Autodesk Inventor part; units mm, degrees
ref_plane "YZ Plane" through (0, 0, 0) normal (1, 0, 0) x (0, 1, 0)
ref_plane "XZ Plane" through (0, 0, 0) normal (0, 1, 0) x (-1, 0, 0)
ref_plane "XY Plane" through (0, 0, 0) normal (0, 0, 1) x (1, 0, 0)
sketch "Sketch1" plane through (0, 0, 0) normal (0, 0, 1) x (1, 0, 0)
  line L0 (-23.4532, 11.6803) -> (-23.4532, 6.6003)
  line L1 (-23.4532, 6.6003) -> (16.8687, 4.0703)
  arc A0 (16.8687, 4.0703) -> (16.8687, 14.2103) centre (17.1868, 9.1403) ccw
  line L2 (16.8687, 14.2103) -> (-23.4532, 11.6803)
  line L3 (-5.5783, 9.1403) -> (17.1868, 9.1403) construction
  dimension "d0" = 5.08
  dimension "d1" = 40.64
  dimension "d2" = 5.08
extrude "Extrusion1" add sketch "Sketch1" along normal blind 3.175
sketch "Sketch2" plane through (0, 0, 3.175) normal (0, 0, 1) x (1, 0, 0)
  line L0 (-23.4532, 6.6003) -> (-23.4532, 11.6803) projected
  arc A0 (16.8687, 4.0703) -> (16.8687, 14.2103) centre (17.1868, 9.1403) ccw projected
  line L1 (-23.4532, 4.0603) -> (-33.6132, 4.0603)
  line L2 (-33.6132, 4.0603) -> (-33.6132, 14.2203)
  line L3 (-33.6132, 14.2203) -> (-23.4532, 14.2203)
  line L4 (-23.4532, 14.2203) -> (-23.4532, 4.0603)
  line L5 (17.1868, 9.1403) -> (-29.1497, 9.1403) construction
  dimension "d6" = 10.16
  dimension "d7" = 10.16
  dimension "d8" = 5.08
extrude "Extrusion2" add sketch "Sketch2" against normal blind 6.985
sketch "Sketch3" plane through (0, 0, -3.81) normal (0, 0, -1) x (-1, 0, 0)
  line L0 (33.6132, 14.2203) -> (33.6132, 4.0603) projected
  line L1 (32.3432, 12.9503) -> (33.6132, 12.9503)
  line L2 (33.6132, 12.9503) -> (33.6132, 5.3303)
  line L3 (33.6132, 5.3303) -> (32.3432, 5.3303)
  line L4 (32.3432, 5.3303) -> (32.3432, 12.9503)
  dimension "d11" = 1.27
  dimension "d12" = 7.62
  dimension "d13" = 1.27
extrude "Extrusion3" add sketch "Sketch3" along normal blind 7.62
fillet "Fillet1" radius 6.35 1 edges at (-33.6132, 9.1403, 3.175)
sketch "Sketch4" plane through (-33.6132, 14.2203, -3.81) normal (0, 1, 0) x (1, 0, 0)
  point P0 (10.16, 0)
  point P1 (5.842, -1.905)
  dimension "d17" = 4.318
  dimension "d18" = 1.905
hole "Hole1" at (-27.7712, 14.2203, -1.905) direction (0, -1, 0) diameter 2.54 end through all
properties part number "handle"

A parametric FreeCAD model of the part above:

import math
import FreeCAD as App
import Part
import Sketcher

V = App.Vector
Q = App.Units.Quantity


def edges_at(feature, points):
    """Names of the edges that pass closest to the given points."""
    edges = feature.Shape.Edges
    near = lambda p: min(range(len(edges)), key=lambda i: edges[i].distToShape(Part.Vertex(*p))[0])
    return sorted({f"Edge{near(p) + 1}" for p in points})

doc = App.newDocument("Part")
body = doc.addObject("PartDesign::Body", "Body")

# Sketch on XY plane
sketch1 = body.newObject("Sketcher::SketchObject", "Sketch")
sketch1.AttachmentSupport = (doc.getObject("XY_Plane"), [""])
sketch1.MapMode = "FlatFace"
sketch1.addGeometry([
    Part.LineSegment(V(16.8687, 14.2103, 0), V(-23.4532, 11.6803, 0)),
    Part.LineSegment(V(-23.4532, 11.6803, 0), V(-23.4532, 6.6003, 0)),
    Part.LineSegment(V(-23.4532, 6.6003, 0), V(16.8687, 4.0703, 0)),
    Part.ArcOfCircle(Part.Circle(V(17.1868, 9.1403, 0), V(0, 0, 1), 5.079969), math.radians(-93.590124), math.radians(93.590124)),
], False)
sketch1.addConstraint([
    Sketcher.Constraint("Coincident", 0, 2, 1, 1),
    Sketcher.Constraint("Coincident", 1, 2, 2, 1),
    Sketcher.Constraint("Tangent", 2, 2, 3, 1),
    Sketcher.Constraint("Tangent", 3, 2, 0, 1),
    Sketcher.Constraint("Vertical", 1),
    Sketcher.Constraint("Vertical", 2, 2, 3, 2),
    Sketcher.Constraint("Radius", 3, Q("0.2 in")),
    Sketcher.Constraint("DistanceY", 1, 2, 1, 1, Q("0.2 in")),
    Sketcher.Constraint("DistanceX", 0, 2, 3, 3, Q("1.6 in")),
    Sketcher.Constraint("DistanceX", -1, 1, 3, 3, 17.1868),
    Sketcher.Constraint("DistanceY", -1, 1, 3, 3, 9.1403),
])
pad1 = body.newObject("PartDesign::Pad", "Pad")
pad1.Profile = sketch1
pad1.Length = Q("0.125 in")

# Sketch on XY plane
sketch2 = body.newObject("Sketcher::SketchObject", "Sketch001")
sketch2.AttachmentSupport = (doc.getObject("XY_Plane"), [""])
sketch2.MapMode = "FlatFace"
sketch2.AttachmentOffset = App.Placement(V(0, 0, 0.125 * 25.4), App.Rotation())
sketch2.addGeometry([
    Part.LineSegment(V(-23.4532, 4.0603, 0), V(-23.4532, 14.2203, 0)),
    Part.LineSegment(V(-23.4532, 14.2203, 0), V(-33.6132, 14.2203, 0)),
    Part.LineSegment(V(-33.6132, 14.2203, 0), V(-33.6132, 4.0603, 0)),
    Part.LineSegment(V(-33.6132, 4.0603, 0), V(-23.4532, 4.0603, 0)),
], False)
sketch2.addConstraint([
    Sketcher.Constraint("Coincident", 0, 2, 1, 1),
    Sketcher.Constraint("Coincident", 1, 2, 2, 1),
    Sketcher.Constraint("Coincident", 2, 2, 3, 1),
    Sketcher.Constraint("Coincident", 3, 2, 0, 1),
    Sketcher.Constraint("Vertical", 0),
    Sketcher.Constraint("Horizontal", 1),
    Sketcher.Constraint("Vertical", 2),
    Sketcher.Constraint("Horizontal", 3),
    Sketcher.Constraint("Equal", 3, 0),
    Sketcher.Constraint("DistanceX", 1, 2, 1, 1, Q("0.4 in")),
    Sketcher.Constraint("DistanceX", 0, 2, -1, 1, 23.4532),
    Sketcher.Constraint("DistanceY", -1, 1, 0, 2, 14.2203),
])
pad2 = body.newObject("PartDesign::Pad", "Pad001")
pad2.Profile = sketch2
pad2.Length = Q("0.275 in")
pad2.Reversed = True

# Sketch on XY plane
sketch3 = body.newObject("Sketcher::SketchObject", "Sketch002")
sketch3.AttachmentSupport = (doc.getObject("XY_Plane"), [""])
sketch3.MapMode = "FlatFace"
sketch3.AttachmentOffset = App.Placement(V(0, 0, -0.15 * 25.4), App.Rotation())
sketch3.addGeometry([
    Part.LineSegment(V(-33.6132, 5.3303, 0), V(-33.6132, 12.9503, 0)),
    Part.LineSegment(V(-33.6132, 12.9503, 0), V(-32.3432, 12.9503, 0)),
    Part.LineSegment(V(-32.3432, 12.9503, 0), V(-32.3432, 5.3303, 0)),
    Part.LineSegment(V(-32.3432, 5.3303, 0), V(-33.6132, 5.3303, 0)),
], False)
sketch3.addConstraint([
    Sketcher.Constraint("Coincident", 0, 2, 1, 1),
    Sketcher.Constraint("Coincident", 1, 2, 2, 1),
    Sketcher.Constraint("Coincident", 2, 2, 3, 1),
    Sketcher.Constraint("Coincident", 3, 2, 0, 1),
    Sketcher.Constraint("Vertical", 0),
    Sketcher.Constraint("Horizontal", 1),
    Sketcher.Constraint("Vertical", 2),
    Sketcher.Constraint("Horizontal", 3),
    Sketcher.Constraint("DistanceY", 0, 1, 0, 2, Q("0.3 in")),
    Sketcher.Constraint("DistanceX", 1, 1, 1, 2, Q("0.05 in")),
    Sketcher.Constraint("DistanceX", 0, 2, -1, 1, 33.6132),
    Sketcher.Constraint("DistanceY", -1, 1, 0, 2, 12.9503),
])
pad3 = body.newObject("PartDesign::Pad", "Pad002")
pad3.Profile = sketch3
pad3.Length = Q("0.3 in")
pad3.Reversed = True
doc.recompute()

fillet = body.newObject("PartDesign::Fillet", "Fillet")
fillet.Base = (pad3, edges_at(pad3, [(-33.613, 9.14, 3.175)]))
fillet.Radius = Q("0.25 in")

# Sketch on XZ plane
sketch4 = body.newObject("Sketcher::SketchObject", "Sketch003")
sketch4.AttachmentSupport = (doc.getObject("XZ_Plane"), [""])
sketch4.MapMode = "FlatFace"
sketch4.AttachmentOffset = App.Placement(V(0, 0, -14.2203), App.Rotation())
sketch4.addGeometry(Part.Circle(V(-27.7712, -1.905, 0), V(0, 0, 1), 1.27), False)
sketch4.addConstraint([
    Sketcher.Constraint("Diameter", 0, Q("0.1 in")),
    Sketcher.Constraint("DistanceY", 0, 3, -1, 1, Q("0.075 in")),
    Sketcher.Constraint("DistanceX", 0, 3, -1, 1, 27.7712),
])
doc.recompute()
hole = body.newObject("PartDesign::Hole", "Hole")
hole.Profile = sketch4
hole.ThreadType = "None"
hole.Diameter = Q("0.1 in")
hole.DepthType = "ThroughAll"
hole.Reversed = True

doc.recompute()
